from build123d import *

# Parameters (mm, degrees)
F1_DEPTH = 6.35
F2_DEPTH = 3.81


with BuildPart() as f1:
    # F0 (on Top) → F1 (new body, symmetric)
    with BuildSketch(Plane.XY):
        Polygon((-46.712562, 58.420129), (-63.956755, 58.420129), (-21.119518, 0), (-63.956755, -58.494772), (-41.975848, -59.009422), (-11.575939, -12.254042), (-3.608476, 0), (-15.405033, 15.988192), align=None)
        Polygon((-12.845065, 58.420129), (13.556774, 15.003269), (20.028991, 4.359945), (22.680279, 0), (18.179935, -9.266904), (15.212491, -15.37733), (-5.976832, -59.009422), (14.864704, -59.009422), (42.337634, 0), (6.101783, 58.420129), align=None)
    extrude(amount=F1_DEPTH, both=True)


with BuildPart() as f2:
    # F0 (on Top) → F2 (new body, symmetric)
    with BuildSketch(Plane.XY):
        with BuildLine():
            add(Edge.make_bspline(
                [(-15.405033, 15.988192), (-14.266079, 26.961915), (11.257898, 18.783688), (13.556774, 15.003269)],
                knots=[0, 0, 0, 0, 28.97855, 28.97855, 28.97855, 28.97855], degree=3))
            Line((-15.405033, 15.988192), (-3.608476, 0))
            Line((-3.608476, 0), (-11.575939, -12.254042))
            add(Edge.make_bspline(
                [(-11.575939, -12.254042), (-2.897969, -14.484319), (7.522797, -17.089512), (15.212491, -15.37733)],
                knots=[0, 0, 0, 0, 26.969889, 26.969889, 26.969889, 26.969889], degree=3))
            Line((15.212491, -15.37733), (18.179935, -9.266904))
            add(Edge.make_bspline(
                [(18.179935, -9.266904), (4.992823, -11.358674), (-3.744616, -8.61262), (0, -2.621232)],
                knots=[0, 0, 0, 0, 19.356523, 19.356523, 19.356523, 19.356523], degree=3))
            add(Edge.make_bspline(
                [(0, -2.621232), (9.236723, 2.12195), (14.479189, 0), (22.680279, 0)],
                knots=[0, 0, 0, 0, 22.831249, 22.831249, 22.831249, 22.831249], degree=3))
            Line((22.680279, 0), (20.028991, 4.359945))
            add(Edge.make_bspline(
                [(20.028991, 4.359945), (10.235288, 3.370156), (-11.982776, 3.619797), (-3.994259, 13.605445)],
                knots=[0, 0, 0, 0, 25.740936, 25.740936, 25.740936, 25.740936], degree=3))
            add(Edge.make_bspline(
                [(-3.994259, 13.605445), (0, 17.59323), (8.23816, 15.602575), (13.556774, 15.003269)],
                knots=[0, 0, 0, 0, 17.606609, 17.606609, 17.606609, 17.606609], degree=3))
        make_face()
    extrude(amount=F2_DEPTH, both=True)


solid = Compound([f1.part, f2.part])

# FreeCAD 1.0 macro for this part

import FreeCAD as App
import Part
import Sketcher
from FreeCAD import Vector
Q = App.Units.Quantity

doc = App.newDocument("Part")
body = doc.addObject("PartDesign::Body", "Body")
body.AllowCompound = True

# Sketch on XY plane
sketch1 = body.newObject("Sketcher::SketchObject", "Sketch")
sketch1.AttachmentSupport = (doc.getObject("XY_Plane"), [""])
sketch1.MapMode = "FlatFace"
sketch1.addGeometry([
    Part.LineSegment(Vector(-47, 58, 0), Vector(-64, 58, 0)),  # 0
    Part.LineSegment(Vector(-64, 58, 0), Vector(-21, 0, 0)),  # 1
    Part.LineSegment(Vector(-21, 0, 0), Vector(-64, -58, 0)),  # 2
    Part.LineSegment(Vector(-64, -58, 0), Vector(-42, -59, 0)),  # 3
    Part.LineSegment(Vector(-42, -59, 0), Vector(-12, -12, 0)),  # 4
    Part.LineSegment(Vector(-12, -12, 0), Vector(-4, 0, 0)),  # 5
    Part.LineSegment(Vector(-4, 0, 0), Vector(-15, 16, 0)),  # 6
    Part.LineSegment(Vector(-15, 16, 0), Vector(-47, 58, 0)),  # 7
    Part.LineSegment(Vector(-13, 58, 0), Vector(14, 15, 0)),  # 8
    Part.LineSegment(Vector(14, 15, 0), Vector(20, 4, 0)),  # 9
    Part.LineSegment(Vector(20, 4, 0), Vector(23, 0, 0)),  # 10
    Part.LineSegment(Vector(23, 0, 0), Vector(18, -9, 0)),  # 11
    Part.LineSegment(Vector(18, -9, 0), Vector(15, -15, 0)),  # 12
    Part.LineSegment(Vector(15, -15, 0), Vector(-6, -59, 0)),  # 13
    Part.LineSegment(Vector(-6, -59, 0), Vector(15, -59, 0)),  # 14
    Part.LineSegment(Vector(15, -59, 0), Vector(42, 0, 0)),  # 15
    Part.LineSegment(Vector(42, 0, 0), Vector(6, 58, 0)),  # 16
    Part.LineSegment(Vector(6, 58, 0), Vector(-13, 58, 0)),  # 17
], False)
sketch1.addConstraint([
    Sketcher.Constraint("Coincident", 0, 2, 1, 1),
    Sketcher.Constraint("Coincident", 1, 2, 2, 1),
    Sketcher.Constraint("Coincident", 2, 2, 3, 1),
    Sketcher.Constraint("Coincident", 3, 2, 4, 1),
    Sketcher.Constraint("Coincident", 4, 2, 5, 1),
    Sketcher.Constraint("Coincident", 5, 2, 6, 1),
    Sketcher.Constraint("Coincident", 6, 2, 7, 1),
    Sketcher.Constraint("Coincident", 7, 2, 0, 1),
    Sketcher.Constraint("Coincident", 8, 2, 9, 1),
    Sketcher.Constraint("Coincident", 9, 2, 10, 1),
    Sketcher.Constraint("Coincident", 10, 2, 11, 1),
    Sketcher.Constraint("Coincident", 11, 2, 12, 1),
    Sketcher.Constraint("Coincident", 12, 2, 13, 1),
    Sketcher.Constraint("Coincident", 13, 2, 14, 1),
    Sketcher.Constraint("Coincident", 14, 2, 15, 1),
    Sketcher.Constraint("Coincident", 15, 2, 16, 1),
    Sketcher.Constraint("Coincident", 16, 2, 17, 1),
    Sketcher.Constraint("Coincident", 17, 2, 8, 1),
    Sketcher.Constraint("Horizontal", 0),
    Sketcher.Constraint("Horizontal", 14),
    Sketcher.Constraint("Horizontal", 17),
    Sketcher.Constraint("PointOnObject", 1, 2, -1),
    Sketcher.Constraint("PointOnObject", 5, 2, -1),
    Sketcher.Constraint("PointOnObject", 10, 2, -1),
    Sketcher.Constraint("PointOnObject", 15, 2, -1),
    Sketcher.Constraint("Parallel", 4, 5),
    Sketcher.Constraint("Parallel", 6, 7),
    Sketcher.Constraint("Parallel", 8, 9),
    Sketcher.Constraint("Parallel", 9, 10),
    Sketcher.Constraint("Parallel", 11, 12),
    Sketcher.Constraint("Parallel", 12, 13),
    Sketcher.Constraint("Horizontal", 3, 2, 13, 2),
    Sketcher.Constraint("Horizontal", 7, 2, 16, 2),
    Sketcher.Constraint("Vertical", 0, 2, 2, 2),
    Sketcher.Constraint("DistanceX", 7, 2, 1, 2, Q("1.0076002 in")),
    Sketcher.Constraint("DistanceY", 2, 2, 0, 2, Q("116.914901 mm")),
    Sketcher.Constraint("DistanceX", 12, 2, 9, 2, Q("4.8165 mm")),
    Sketcher.Constraint("DistanceX", 11, 2, 15, 2, Q("24.157699 mm")),
    Sketcher.Constraint("Distance", 1, Q("72.442669 mm")),
    Sketcher.Constraint("Distance", 3, Q("21.986931 mm")),
    Sketcher.Constraint("Distance", 8, Q("50.814179 mm")),
    Sketcher.Constraint("Distance", 10, Q("5.102788 mm")),
    Sketcher.Constraint("DistanceX", 0, 2, 0, 1, Q("17.244193 mm")),
    Sketcher.Constraint("DistanceX", 14, 1, 14, 2, Q("20.841536 mm")),
    Sketcher.Constraint("DistanceX", 17, 2, 17, 1, Q("18.946848 mm")),
    Sketcher.Constraint("DistanceX", 4, 2, -1, 1, Q("11.575939 mm")),
    Sketcher.Constraint("DistanceX", 7, 2, -1, 1, Q("46.712562 mm")),
    Sketcher.Constraint("DistanceY", -1, 1, 8, 2, Q("15.003269 mm")),
    Sketcher.Constraint("DistanceX", -1, 1, 9, 2, Q("20.028991 mm")),
    Sketcher.Constraint("DistanceY", 12, 2, -1, 1, Q("15.37733 mm")),
    Sketcher.Constraint("DistanceY", 3, 2, 2, 2, Q("0.51465 mm")),
    Sketcher.Constraint("DistanceY", 3, 2, 4, 2, Q("46.75538 mm")),
    Sketcher.Constraint("DistanceX", 0, 2, 6, 2, Q("48.551722 mm")),
    Sketcher.Constraint("DistanceY", 11, 2, 9, 2, Q("13.626849 mm")),
])
pad1 = body.newObject("PartDesign::Pad", "Pad")
pad1.Profile = sketch1
pad1.Length = Q("0.5 in")
pad1.Midplane = True
body2 = doc.addObject("PartDesign::Body", "Body001")

# Sketch on XY plane
sketch2 = body2.newObject("Sketcher::SketchObject", "Sketch001")
sketch2.AttachmentSupport = (doc.getObject("XY_Plane001"), [""])
sketch2.MapMode = "FlatFace"
sketch2.addGeometry([
    Part.BSplineCurve([Vector(-15.405033, 15.988192, 0), Vector(-14.266079, 26.961915, 0), Vector(11.257898, 18.783688, 0), Vector(13.556774, 15.003269, 0)], [4, 4], [0, 28.97855], False, 3, [1, 1, 1, 1], False),  # 0
    Part.LineSegment(Vector(-15.405033, 15.988192, 0), Vector(-3.608476, 0, 0)),  # 1
    Part.LineSegment(Vector(-3.608476, 0, 0), Vector(-11.575939, -12.254042, 0)),  # 2
    Part.BSplineCurve([Vector(-11.575939, -12.254042, 0), Vector(-2.897969, -14.484319, 0), Vector(7.522797, -17.089512, 0), Vector(15.212491, -15.37733, 0)], [4, 4], [0, 26.969889], False, 3, [1, 1, 1, 1], False),  # 3
    Part.LineSegment(Vector(15.212491, -15.37733, 0), Vector(18.179935, -9.266904, 0)),  # 4
    Part.BSplineCurve([Vector(18.179935, -9.266904, 0), Vector(4.992823, -11.358674, 0), Vector(-3.744616, -8.61262, 0), Vector(0, -2.621232, 0)], [4, 4], [0, 19.356523], False, 3, [1, 1, 1, 1], False),  # 5
    Part.BSplineCurve([Vector(0, -2.621232, 0), Vector(9.236723, 2.12195, 0), Vector(14.479189, 0, 0), Vector(22.680279, 0, 0)], [4, 4], [0, 22.831249], False, 3, [1, 1, 1, 1], False),  # 6
    Part.LineSegment(Vector(22.680279, 0, 0), Vector(20.028991, 4.359945, 0)),  # 7
    Part.BSplineCurve([Vector(20.028991, 4.359945, 0), Vector(10.235288, 3.370156, 0), Vector(-11.982776, 3.619797, 0), Vector(-3.994259, 13.605445, 0)], [4, 4], [0, 25.740936], False, 3, [1, 1, 1, 1], False),  # 8
    Part.BSplineCurve([Vector(-3.994259, 13.605445, 0), Vector(0, 17.59323, 0), Vector(8.23816, 15.602575, 0), Vector(13.556774, 15.003269, 0)], [4, 4], [0, 17.606609], False, 3, [1, 1, 1, 1], False),  # 9
], False)
sketch2.addConstraint([
    Sketcher.Constraint("Block", 0),
    Sketcher.Constraint("Block", 3),
    Sketcher.Constraint("Block", 5),
    Sketcher.Constraint("Block", 6),
    Sketcher.Constraint("Block", 8),
    Sketcher.Constraint("Block", 9),
    Sketcher.Constraint("Coincident", 0, 1, 1, 1),
    Sketcher.Constraint("Coincident", 1, 2, 2, 1),
    Sketcher.Constraint("Coincident", 2, 2, 3, 1),
    Sketcher.Constraint("Coincident", 3, 2, 4, 1),
    Sketcher.Constraint("Coincident", 4, 2, 5, 1),
    Sketcher.Constraint("Coincident", 6, 2, 7, 1),
    Sketcher.Constraint("Coincident", 7, 2, 8, 1),
    Sketcher.Constraint("PointOnObject", 1, 2, -1),
    Sketcher.Constraint("DistanceX", 1, 2, 4, 2, Q("21.788411 mm")),
])
pad2 = body2.newObject("PartDesign::Pad", "Pad001")
pad2.Profile = sketch2
pad2.Length = Q("0.3 in")
pad2.Midplane = True

doc.recompute()
